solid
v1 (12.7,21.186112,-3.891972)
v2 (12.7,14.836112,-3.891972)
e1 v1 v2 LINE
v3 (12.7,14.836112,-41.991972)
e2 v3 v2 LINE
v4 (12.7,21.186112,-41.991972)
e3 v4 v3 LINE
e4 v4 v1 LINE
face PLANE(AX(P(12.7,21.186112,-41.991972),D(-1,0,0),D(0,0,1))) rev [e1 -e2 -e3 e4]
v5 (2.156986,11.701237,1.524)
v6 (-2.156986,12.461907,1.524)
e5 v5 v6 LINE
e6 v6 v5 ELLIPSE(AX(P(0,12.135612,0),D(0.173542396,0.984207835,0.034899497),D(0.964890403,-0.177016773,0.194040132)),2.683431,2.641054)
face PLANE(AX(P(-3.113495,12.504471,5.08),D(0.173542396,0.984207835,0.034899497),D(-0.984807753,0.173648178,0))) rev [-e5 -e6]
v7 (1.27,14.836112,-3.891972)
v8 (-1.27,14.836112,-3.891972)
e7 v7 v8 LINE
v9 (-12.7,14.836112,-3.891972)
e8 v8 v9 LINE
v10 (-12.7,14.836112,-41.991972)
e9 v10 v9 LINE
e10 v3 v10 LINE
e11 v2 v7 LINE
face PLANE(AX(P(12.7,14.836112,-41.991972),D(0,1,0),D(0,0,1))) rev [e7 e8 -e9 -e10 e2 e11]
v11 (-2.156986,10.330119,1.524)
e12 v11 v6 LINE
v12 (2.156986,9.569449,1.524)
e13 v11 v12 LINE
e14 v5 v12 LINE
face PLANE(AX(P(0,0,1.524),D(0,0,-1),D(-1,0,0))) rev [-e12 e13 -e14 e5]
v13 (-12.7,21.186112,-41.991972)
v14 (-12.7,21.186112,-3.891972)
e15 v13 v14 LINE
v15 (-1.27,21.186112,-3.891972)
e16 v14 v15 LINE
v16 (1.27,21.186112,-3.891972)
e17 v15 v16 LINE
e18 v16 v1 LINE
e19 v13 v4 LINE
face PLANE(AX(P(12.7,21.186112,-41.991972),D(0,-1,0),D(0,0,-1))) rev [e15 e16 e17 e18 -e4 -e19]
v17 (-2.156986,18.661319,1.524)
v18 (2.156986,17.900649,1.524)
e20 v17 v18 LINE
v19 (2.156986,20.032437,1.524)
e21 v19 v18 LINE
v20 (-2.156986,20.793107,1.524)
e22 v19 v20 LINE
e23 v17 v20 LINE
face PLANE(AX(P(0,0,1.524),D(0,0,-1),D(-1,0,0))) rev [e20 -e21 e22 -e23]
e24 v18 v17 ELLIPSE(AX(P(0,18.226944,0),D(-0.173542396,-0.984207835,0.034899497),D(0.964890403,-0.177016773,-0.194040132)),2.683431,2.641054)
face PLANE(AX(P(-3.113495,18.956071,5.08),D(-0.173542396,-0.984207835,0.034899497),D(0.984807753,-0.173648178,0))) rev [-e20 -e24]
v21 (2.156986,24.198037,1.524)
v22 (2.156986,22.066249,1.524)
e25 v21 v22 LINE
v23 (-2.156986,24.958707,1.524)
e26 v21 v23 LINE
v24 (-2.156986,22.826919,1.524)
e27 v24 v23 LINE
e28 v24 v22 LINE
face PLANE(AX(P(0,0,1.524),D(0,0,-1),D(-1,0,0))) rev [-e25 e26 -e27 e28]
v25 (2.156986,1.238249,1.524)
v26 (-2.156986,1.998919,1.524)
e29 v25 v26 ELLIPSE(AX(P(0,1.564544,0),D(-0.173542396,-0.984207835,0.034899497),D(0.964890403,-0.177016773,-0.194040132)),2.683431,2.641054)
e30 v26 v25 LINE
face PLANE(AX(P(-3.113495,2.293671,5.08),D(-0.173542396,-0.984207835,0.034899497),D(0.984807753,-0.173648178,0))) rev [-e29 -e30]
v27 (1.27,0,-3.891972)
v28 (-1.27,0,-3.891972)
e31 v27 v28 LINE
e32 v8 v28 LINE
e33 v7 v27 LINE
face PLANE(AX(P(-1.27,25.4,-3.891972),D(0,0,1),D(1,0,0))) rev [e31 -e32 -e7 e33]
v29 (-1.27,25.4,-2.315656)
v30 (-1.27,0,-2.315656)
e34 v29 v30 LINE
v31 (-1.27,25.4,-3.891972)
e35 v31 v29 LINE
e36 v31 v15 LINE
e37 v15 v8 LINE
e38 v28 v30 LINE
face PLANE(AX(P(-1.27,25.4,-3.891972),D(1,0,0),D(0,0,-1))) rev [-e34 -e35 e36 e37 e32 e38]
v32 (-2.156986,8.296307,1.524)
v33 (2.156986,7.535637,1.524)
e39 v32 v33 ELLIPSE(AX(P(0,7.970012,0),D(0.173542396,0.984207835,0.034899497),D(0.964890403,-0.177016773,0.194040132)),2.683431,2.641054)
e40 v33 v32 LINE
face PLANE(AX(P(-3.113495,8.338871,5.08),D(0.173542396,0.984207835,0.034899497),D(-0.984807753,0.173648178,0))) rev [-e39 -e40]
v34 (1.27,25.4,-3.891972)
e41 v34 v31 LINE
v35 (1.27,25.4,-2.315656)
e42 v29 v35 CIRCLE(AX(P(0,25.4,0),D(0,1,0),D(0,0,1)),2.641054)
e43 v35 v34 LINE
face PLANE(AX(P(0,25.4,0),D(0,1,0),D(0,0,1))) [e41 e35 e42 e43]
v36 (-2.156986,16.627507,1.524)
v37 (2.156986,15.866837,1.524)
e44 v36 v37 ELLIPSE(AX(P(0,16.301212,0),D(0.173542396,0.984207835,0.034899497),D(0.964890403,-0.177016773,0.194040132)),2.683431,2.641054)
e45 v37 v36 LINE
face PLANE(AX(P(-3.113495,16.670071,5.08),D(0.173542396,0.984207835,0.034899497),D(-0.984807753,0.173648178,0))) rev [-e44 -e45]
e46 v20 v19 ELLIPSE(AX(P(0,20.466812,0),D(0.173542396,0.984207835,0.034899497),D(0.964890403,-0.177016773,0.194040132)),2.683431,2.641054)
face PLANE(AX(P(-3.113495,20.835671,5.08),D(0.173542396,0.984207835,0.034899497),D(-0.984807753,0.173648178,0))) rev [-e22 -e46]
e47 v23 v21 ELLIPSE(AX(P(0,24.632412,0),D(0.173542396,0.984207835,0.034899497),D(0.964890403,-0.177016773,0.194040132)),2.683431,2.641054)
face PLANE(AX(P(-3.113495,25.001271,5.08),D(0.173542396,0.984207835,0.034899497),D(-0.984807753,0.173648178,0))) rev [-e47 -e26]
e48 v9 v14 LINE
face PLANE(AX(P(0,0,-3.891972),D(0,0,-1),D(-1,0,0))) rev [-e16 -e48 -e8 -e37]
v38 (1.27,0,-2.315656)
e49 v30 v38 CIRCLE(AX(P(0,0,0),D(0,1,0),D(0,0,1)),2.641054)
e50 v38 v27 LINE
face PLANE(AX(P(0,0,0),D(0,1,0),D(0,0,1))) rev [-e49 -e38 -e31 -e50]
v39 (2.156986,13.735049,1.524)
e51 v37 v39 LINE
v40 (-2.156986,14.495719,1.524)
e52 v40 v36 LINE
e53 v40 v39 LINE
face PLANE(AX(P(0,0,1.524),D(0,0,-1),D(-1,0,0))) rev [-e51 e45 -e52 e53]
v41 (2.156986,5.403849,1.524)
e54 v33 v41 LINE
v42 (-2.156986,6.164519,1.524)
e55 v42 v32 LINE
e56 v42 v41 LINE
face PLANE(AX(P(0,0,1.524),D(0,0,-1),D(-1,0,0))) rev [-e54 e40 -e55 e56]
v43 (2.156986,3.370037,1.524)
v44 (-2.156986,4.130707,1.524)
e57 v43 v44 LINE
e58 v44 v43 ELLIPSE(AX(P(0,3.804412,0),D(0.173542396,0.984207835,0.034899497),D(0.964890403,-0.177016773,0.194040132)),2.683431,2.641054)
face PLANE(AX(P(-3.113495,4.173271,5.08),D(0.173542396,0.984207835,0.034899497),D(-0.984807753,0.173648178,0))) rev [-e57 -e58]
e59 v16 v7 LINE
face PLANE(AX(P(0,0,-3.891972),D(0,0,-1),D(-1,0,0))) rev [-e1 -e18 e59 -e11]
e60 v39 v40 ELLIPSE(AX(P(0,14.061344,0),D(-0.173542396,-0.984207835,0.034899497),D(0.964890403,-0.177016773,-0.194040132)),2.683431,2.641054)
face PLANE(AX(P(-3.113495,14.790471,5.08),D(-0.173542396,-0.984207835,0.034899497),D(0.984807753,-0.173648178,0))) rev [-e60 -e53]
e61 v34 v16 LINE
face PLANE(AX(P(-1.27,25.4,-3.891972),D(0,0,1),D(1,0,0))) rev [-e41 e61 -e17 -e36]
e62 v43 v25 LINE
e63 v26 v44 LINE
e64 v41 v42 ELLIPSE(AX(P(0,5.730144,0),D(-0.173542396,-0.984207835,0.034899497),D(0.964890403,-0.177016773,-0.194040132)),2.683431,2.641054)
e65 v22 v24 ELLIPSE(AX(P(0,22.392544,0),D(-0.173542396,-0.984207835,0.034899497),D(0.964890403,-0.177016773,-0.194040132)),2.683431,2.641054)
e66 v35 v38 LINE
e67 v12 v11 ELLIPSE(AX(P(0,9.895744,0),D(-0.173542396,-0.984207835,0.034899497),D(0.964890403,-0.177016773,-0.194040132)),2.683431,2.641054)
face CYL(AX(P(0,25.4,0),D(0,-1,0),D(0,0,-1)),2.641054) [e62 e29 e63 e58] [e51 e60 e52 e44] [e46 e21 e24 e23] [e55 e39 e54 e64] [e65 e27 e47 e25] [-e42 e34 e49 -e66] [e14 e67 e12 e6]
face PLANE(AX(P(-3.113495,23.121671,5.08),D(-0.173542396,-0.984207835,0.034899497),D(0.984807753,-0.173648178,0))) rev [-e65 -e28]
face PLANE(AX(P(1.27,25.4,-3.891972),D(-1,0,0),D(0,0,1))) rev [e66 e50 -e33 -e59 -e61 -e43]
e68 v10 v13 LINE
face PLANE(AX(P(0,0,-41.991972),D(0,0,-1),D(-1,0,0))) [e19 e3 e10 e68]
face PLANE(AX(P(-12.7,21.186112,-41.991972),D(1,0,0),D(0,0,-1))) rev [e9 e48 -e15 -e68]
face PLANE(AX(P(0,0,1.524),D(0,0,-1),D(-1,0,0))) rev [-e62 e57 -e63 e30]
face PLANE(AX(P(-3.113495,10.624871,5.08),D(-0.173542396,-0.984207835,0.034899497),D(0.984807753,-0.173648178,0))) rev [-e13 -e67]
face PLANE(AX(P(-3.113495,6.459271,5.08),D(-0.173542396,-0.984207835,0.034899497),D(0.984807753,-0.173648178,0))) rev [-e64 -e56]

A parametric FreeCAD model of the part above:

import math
import FreeCAD as App
import Part
import Sketcher
Q = App.Units.Quantity


def faces_at(feature, points):
    """Names of the faces that lie closest to the given points."""
    faces = feature.Shape.Faces
    near = lambda p: min(range(len(faces)), key=lambda i: faces[i].distToShape(Part.Vertex(*p))[0])
    return sorted({f"Face{near(p) + 1}" for p in points})


def add_polygon(sketch, points):
    """Adds a closed chain of lines whose ends are joined by coincident constraints."""
    first, n = sketch.GeometryCount, len(points)
    for a, b in zip(points, points[1:] + points[:1]):
        sketch.addGeometry(Part.LineSegment(App.Vector(*a, 0), App.Vector(*b, 0)), False)
    for i in range(n):
        sketch.addConstraint(Sketcher.Constraint("Coincident", first + i, 2, first + (i + 1) % n, 1))

doc = App.newDocument("Part")
body = doc.addObject("PartDesign::Body", "Body")

# Sketch on XZ plane
sketch1 = doc.addObject("Sketcher::SketchObject", "Sketch")
body.addObject(sketch1)
sketch1.AttachmentSupport = (doc.XZ_Plane, [""])
sketch1.MapMode = "FlatFace"
sketch1.addGeometry([
    Part.LineSegment(App.Vector(1.27, -3.891972, 0), App.Vector(-1.27, -3.891972, 0)),
    Part.LineSegment(App.Vector(-1.27, -3.891972, 0), App.Vector(-1.27, -2.315656, 0)),
    Part.ArcOfCircle(Part.Circle(App.Vector(0, 0, 0), App.Vector(0, 0, 1), 2.641054), math.radians(-61.257847), math.radians(241.257847)),
    Part.LineSegment(App.Vector(1.27, -2.315656, 0), App.Vector(1.27, -3.891972, 0)),
], False)
sketch1.addConstraint([
    Sketcher.Constraint("Coincident", 0, 2, 1, 1),
    Sketcher.Constraint("Coincident", 1, 2, 2, 2),
    Sketcher.Constraint("Coincident", 2, 1, 3, 1),
    Sketcher.Constraint("Coincident", 3, 2, 0, 1),
    Sketcher.Constraint("Horizontal", 0),
    Sketcher.Constraint("Vertical", 1),
    Sketcher.Constraint("Vertical", 3),
    Sketcher.Constraint("Coincident", 2, 3, -1, 1),
    Sketcher.Constraint("Horizontal", 1, 2, 2, 1),
    Sketcher.Constraint("DistanceX", 0, 2, 0, 1, Q("0.1 in")),
    Sketcher.Constraint("Radius", 2, Q("2.641054 mm")),
    Sketcher.Constraint("DistanceY", 1, 1, 1, 2, Q("1.576316 mm")),
])
pad1 = doc.addObject("PartDesign::Pad", "Pad")
body.addObject(pad1)
pad1.Profile = sketch1
pad1.Length = Q("1 in")
pad1.Reversed = True

# Sketch on XY plane
sketch2 = doc.addObject("Sketcher::SketchObject", "Sketch001")
body.addObject(sketch2)
sketch2.AttachmentSupport = (doc.XY_Plane, [""])
sketch2.MapMode = "FlatFace"
sketch2.AttachmentOffset = App.Placement(App.Vector(0, 0, -3.891972), App.Rotation())
add_polygon(sketch2, [(12.7, 21.186112), (12.7, 14.836112), (-12.7, 14.836112), (-12.7, 21.186112)])  # lines 0-3
sketch2.addConstraint([
    Sketcher.Constraint("Vertical", 0),
    Sketcher.Constraint("Horizontal", 1),
    Sketcher.Constraint("Vertical", 2),
    Sketcher.Constraint("Horizontal", 3),
    Sketcher.Constraint("DistanceX", 1, 2, 1, 1, Q("1 in")),
    Sketcher.Constraint("DistanceY", 0, 2, 0, 1, Q("0.25 in")),
    Sketcher.Constraint("DistanceX", -1, 1, 0, 2, Q("0.5 in")),
    Sketcher.Constraint("DistanceY", -1, 1, 0, 2, Q("14.836112 mm")),
])
pad2 = doc.addObject("PartDesign::Pad", "Pad001")
body.addObject(pad2)
pad2.Profile = sketch2
pad2.Length = Q("1.5 in")
pad2.Reversed = True
body2 = doc.addObject("PartDesign::Body", "Body001")

# Sketch on XY plane
sketch3 = doc.addObject("Sketcher::SketchObject", "Sketch002")
body2.addObject(sketch3)
sketch3.AttachmentSupport = (doc.getObject("XY_Plane001"), [""])
sketch3.MapMode = "FlatFace"
sketch3.AttachmentOffset = App.Placement(App.Vector(0, 0, 0.2 * 25.4), App.Rotation())
add_polygon(sketch3, [(-3.113495, 25.001271), (-3.113495, 23.121671), (2.876409, 22.065489), (2.876409, 23.945089)])  # lines 0-3
sketch3.addConstraint([
    Sketcher.Constraint("Vertical", 0),
    Sketcher.Constraint("Vertical", 2),
    Sketcher.Constraint("Parallel", 1, 3),
    Sketcher.Constraint("Angle", 1, Q("-10 deg")),
    Sketcher.Constraint("DistanceY", 0, 2, 0, 1, Q("0.074 in")),
    Sketcher.Constraint("Distance", 1, Q("6.082308 mm")),
    Sketcher.Constraint("DistanceY", -1, 1, 0, 2, Q("23.121671 mm")),
    Sketcher.Constraint("DistanceX", -1, 1, 1, 2, Q("2.876409 mm")),
])
pad3 = doc.addObject("PartDesign::Pad", "Pad002")
body2.addObject(pad3)
pad3.Profile = sketch3
pad3.Length = Q("0.14 in")
pad3.Reversed = True
doc.recompute()

datumplane = doc.addObject("PartDesign::Plane", "DatumPlane")
body2.addObject(datumplane)
datumplane.AttachmentSupport = (doc.getObject("XY_Plane001"), [""])
datumplane.MapMode = "FlatFace"
datumplane.AttachmentOffset = App.Placement(App.Vector(0, 0, 0.2 * 25.4), App.Rotation())
draft = doc.addObject("PartDesign::Draft", "Draft")
body2.addObject(draft)
draft.Base = (pad3, faces_at(pad3, [
    (-3.113, 24.061, 3.302),
    (-0.119, 22.594, 3.302),
    (2.876, 23.005, 3.302),
    (-0.119, 24.473, 3.302),
]))
draft.NeutralPlane = (datumplane, [""])
draft.Angle = 2
draft.Reversed = False
doc.recompute()

boolean = doc.addObject("PartDesign::Boolean", "Boolean")
body.addObject(boolean)
boolean.Type = "Cut"
boolean.addObjects([body2])
body3 = doc.addObject("PartDesign::Body", "Body002")

# Sketch on XY plane
sketch4 = doc.addObject("Sketcher::SketchObject", "Sketch003")
body3.addObject(sketch4)
sketch4.AttachmentSupport = (doc.getObject("XY_Plane002"), [""])
sketch4.MapMode = "FlatFace"
sketch4.AttachmentOffset = App.Placement(App.Vector(0, 0, 0.2 * 25.4), App.Rotation())
add_polygon(sketch4, [(-3.113495, 16.670071), (-3.113495, 14.790471), (2.876409, 13.734289), (2.876409, 15.613889)])  # lines 0-3
sketch4.addConstraint([
    Sketcher.Constraint("Vertical", 0),
    Sketcher.Constraint("Vertical", 2),
    Sketcher.Constraint("Parallel", 1, 3),
    Sketcher.Constraint("Angle", 1, Q("-10 deg")),
    Sketcher.Constraint("DistanceY", 0, 2, 0, 1, Q("0.074 in")),
    Sketcher.Constraint("Distance", 1, Q("6.082308 mm")),
    Sketcher.Constraint("DistanceY", -1, 1, 0, 2, Q("14.790471 mm")),
    Sketcher.Constraint("DistanceX", -1, 1, 1, 2, Q("2.876409 mm")),
])
pad4 = doc.addObject("PartDesign::Pad", "Pad003")
body3.addObject(pad4)
pad4.Profile = sketch4
pad4.Length = Q("0.14 in")
pad4.Reversed = True
doc.recompute()

datumplane2 = doc.addObject("PartDesign::Plane", "DatumPlane001")
body3.addObject(datumplane2)
datumplane2.AttachmentSupport = (doc.getObject("XY_Plane002"), [""])
datumplane2.MapMode = "FlatFace"
datumplane2.AttachmentOffset = App.Placement(App.Vector(0, 0, 0.2 * 25.4), App.Rotation())
draft2 = doc.addObject("PartDesign::Draft", "Draft001")
body3.addObject(draft2)
draft2.Base = (pad4, faces_at(pad4, [
    (-3.113, 15.73, 3.302),
    (-0.119, 14.262, 3.302),
    (2.876, 14.674, 3.302),
    (-0.119, 16.142, 3.302),
]))
draft2.NeutralPlane = (datumplane2, [""])
draft2.Angle = 2
draft2.Reversed = False
doc.recompute()

boolean2 = doc.addObject("PartDesign::Boolean", "Boolean001")
body.addObject(boolean2)
boolean2.Type = "Cut"
boolean2.addObjects([body3])
body4 = doc.addObject("PartDesign::Body", "Body003")

# Sketch on XY plane
sketch5 = doc.addObject("Sketcher::SketchObject", "Sketch004")
body4.addObject(sketch5)
sketch5.AttachmentSupport = (doc.getObject("XY_Plane003"), [""])
sketch5.MapMode = "FlatFace"
sketch5.AttachmentOffset = App.Placement(App.Vector(0, 0, 0.2 * 25.4), App.Rotation())
add_polygon(sketch5, [(-3.113495, 20.835671), (-3.113495, 18.956071), (2.876409, 17.899889), (2.876409, 19.779489)])  # lines 0-3
sketch5.addConstraint([
    Sketcher.Constraint("Vertical", 0),
    Sketcher.Constraint("Vertical", 2),
    Sketcher.Constraint("Parallel", 1, 3),
    Sketcher.Constraint("Angle", 1, Q("-10 deg")),
    Sketcher.Constraint("DistanceY", 0, 2, 0, 1, Q("0.074 in")),
    Sketcher.Constraint("Distance", 1, Q("6.082308 mm")),
    Sketcher.Constraint("DistanceY", -1, 1, 0, 2, Q("18.956071 mm")),
    Sketcher.Constraint("DistanceX", -1, 1, 1, 2, Q("2.876409 mm")),
])
pad5 = doc.addObject("PartDesign::Pad", "Pad004")
body4.addObject(pad5)
pad5.Profile = sketch5
pad5.Length = Q("0.14 in")
pad5.Reversed = True
doc.recompute()

datumplane3 = doc.addObject("PartDesign::Plane", "DatumPlane002")
body4.addObject(datumplane3)
datumplane3.AttachmentSupport = (doc.getObject("XY_Plane003"), [""])
datumplane3.MapMode = "FlatFace"
datumplane3.AttachmentOffset = App.Placement(App.Vector(0, 0, 0.2 * 25.4), App.Rotation())
draft3 = doc.addObject("PartDesign::Draft", "Draft002")
body4.addObject(draft3)
draft3.Base = (pad5, faces_at(pad5, [
    (-3.113, 19.896, 3.302),
    (-0.119, 18.428, 3.302),
    (2.876, 18.84, 3.302),
    (-0.119, 20.308, 3.302),
]))
draft3.NeutralPlane = (datumplane3, [""])
draft3.Angle = 2
draft3.Reversed = False
doc.recompute()

boolean3 = doc.addObject("PartDesign::Boolean", "Boolean002")
body.addObject(boolean3)
boolean3.Type = "Cut"
boolean3.addObjects([body4])
body5 = doc.addObject("PartDesign::Body", "Body004")

# Sketch on XY plane
sketch6 = doc.addObject("Sketcher::SketchObject", "Sketch005")
body5.addObject(sketch6)
sketch6.AttachmentSupport = (doc.getObject("XY_Plane004"), [""])
sketch6.MapMode = "FlatFace"
sketch6.AttachmentOffset = App.Placement(App.Vector(0, 0, 0.2 * 25.4), App.Rotation())
add_polygon(sketch6, [(-3.113495, 12.504471), (-3.113495, 10.624871), (2.876409, 9.568689), (2.876409, 11.448289)])  # lines 0-3
sketch6.addConstraint([
    Sketcher.Constraint("Vertical", 0),
    Sketcher.Constraint("Vertical", 2),
    Sketcher.Constraint("Parallel", 1, 3),
    Sketcher.Constraint("Angle", 1, Q("-10 deg")),
    Sketcher.Constraint("DistanceY", 0, 2, 0, 1, Q("0.074 in")),
    Sketcher.Constraint("Distance", 1, Q("6.082308 mm")),
    Sketcher.Constraint("DistanceY", -1, 1, 0, 2, Q("10.624871 mm")),
    Sketcher.Constraint("DistanceX", -1, 1, 1, 2, Q("2.876409 mm")),
])
pad6 = doc.addObject("PartDesign::Pad", "Pad005")
body5.addObject(pad6)
pad6.Profile = sketch6
pad6.Length = Q("0.14 in")
pad6.Reversed = True
doc.recompute()

datumplane4 = doc.addObject("PartDesign::Plane", "DatumPlane003")
body5.addObject(datumplane4)
datumplane4.AttachmentSupport = (doc.getObject("XY_Plane004"), [""])
datumplane4.MapMode = "FlatFace"
datumplane4.AttachmentOffset = App.Placement(App.Vector(0, 0, 0.2 * 25.4), App.Rotation())
draft4 = doc.addObject("PartDesign::Draft", "Draft003")
body5.addObject(draft4)
draft4.Base = (pad6, faces_at(pad6, [
    (-3.113, 11.565, 3.302),
    (-0.119, 10.097, 3.302),
    (2.876, 10.508, 3.302),
    (-0.119, 11.976, 3.302),
]))
draft4.NeutralPlane = (datumplane4, [""])
draft4.Angle = 2
draft4.Reversed = False
doc.recompute()

boolean4 = doc.addObject("PartDesign::Boolean", "Boolean003")
body.addObject(boolean4)
boolean4.Type = "Cut"
boolean4.addObjects([body5])
body6 = doc.addObject("PartDesign::Body", "Body005")

# Sketch on XY plane
sketch7 = doc.addObject("Sketcher::SketchObject", "Sketch006")
body6.addObject(sketch7)
sketch7.AttachmentSupport = (doc.getObject("XY_Plane005"), [""])
sketch7.MapMode = "FlatFace"
sketch7.AttachmentOffset = App.Placement(App.Vector(0, 0, 0.2 * 25.4), App.Rotation())
add_polygon(sketch7, [(-3.113495, 8.338871), (-3.113495, 6.459271), (2.876409, 5.403089), (2.876409, 7.282689)])  # lines 0-3
sketch7.addConstraint([
    Sketcher.Constraint("Vertical", 0),
    Sketcher.Constraint("Vertical", 2),
    Sketcher.Constraint("Parallel", 1, 3),
    Sketcher.Constraint("Angle", 1, Q("-10 deg")),
    Sketcher.Constraint("DistanceY", 0, 2, 0, 1, Q("0.074 in")),
    Sketcher.Constraint("Distance", 1, Q("6.082308 mm")),
    Sketcher.Constraint("DistanceY", -1, 1, 0, 2, Q("6.459271 mm")),
    Sketcher.Constraint("DistanceX", -1, 1, 1, 2, Q("2.876409 mm")),
])
pad7 = doc.addObject("PartDesign::Pad", "Pad006")
body6.addObject(pad7)
pad7.Profile = sketch7
pad7.Length = Q("0.14 in")
pad7.Reversed = True
doc.recompute()

datumplane5 = doc.addObject("PartDesign::Plane", "DatumPlane004")
body6.addObject(datumplane5)
datumplane5.AttachmentSupport = (doc.getObject("XY_Plane005"), [""])
datumplane5.MapMode = "FlatFace"
datumplane5.AttachmentOffset = App.Placement(App.Vector(0, 0, 0.2 * 25.4), App.Rotation())
draft5 = doc.addObject("PartDesign::Draft", "Draft004")
body6.addObject(draft5)
draft5.Base = (pad7, faces_at(pad7, [
    (-3.113, 7.399, 3.302),
    (-0.119, 5.931, 3.302),
    (2.876, 6.343, 3.302),
    (-0.119, 7.811, 3.302),
]))
draft5.NeutralPlane = (datumplane5, [""])
draft5.Angle = 2
draft5.Reversed = False
doc.recompute()

boolean5 = doc.addObject("PartDesign::Boolean", "Boolean004")
body.addObject(boolean5)
boolean5.Type = "Cut"
boolean5.addObjects([body6])
body7 = doc.addObject("PartDesign::Body", "Body006")

# Sketch on XY plane
sketch8 = doc.addObject("Sketcher::SketchObject", "Sketch007")
body7.addObject(sketch8)
sketch8.AttachmentSupport = (doc.getObject("XY_Plane006"), [""])
sketch8.MapMode = "FlatFace"
sketch8.AttachmentOffset = App.Placement(App.Vector(0, 0, 0.2 * 25.4), App.Rotation())
add_polygon(sketch8, [(-3.113495, 4.173271), (-3.113495, 2.293671), (2.876409, 1.237489), (2.876409, 3.117089)])  # lines 0-3
sketch8.addConstraint([
    Sketcher.Constraint("Vertical", 0),
    Sketcher.Constraint("Vertical", 2),
    Sketcher.Constraint("Parallel", 1, 3),
    Sketcher.Constraint("Angle", 1, Q("-10 deg")),
    Sketcher.Constraint("DistanceY", 0, 2, 0, 1, Q("0.074 in")),
    Sketcher.Constraint("Distance", 1, Q("6.082308 mm")),
    Sketcher.Constraint("DistanceY", -1, 1, 0, 2, Q("2.293671 mm")),
    Sketcher.Constraint("DistanceX", -1, 1, 1, 2, Q("2.876409 mm")),
])
pad8 = doc.addObject("PartDesign::Pad", "Pad007")
body7.addObject(pad8)
pad8.Profile = sketch8
pad8.Length = Q("0.14 in")
pad8.Reversed = True
doc.recompute()

datumplane6 = doc.addObject("PartDesign::Plane", "DatumPlane005")
body7.addObject(datumplane6)
datumplane6.AttachmentSupport = (doc.getObject("XY_Plane006"), [""])
datumplane6.MapMode = "FlatFace"
datumplane6.AttachmentOffset = App.Placement(App.Vector(0, 0, 0.2 * 25.4), App.Rotation())
draft6 = doc.addObject("PartDesign::Draft", "Draft005")
body7.addObject(draft6)
draft6.Base = (pad8, faces_at(pad8, [
    (-3.113, 3.233, 3.302),
    (-0.119, 1.766, 3.302),
    (2.876, 2.177, 3.302),
    (-0.119, 3.645, 3.302),
]))
draft6.NeutralPlane = (datumplane6, [""])
draft6.Angle = 2
draft6.Reversed = False
doc.recompute()

boolean6 = doc.addObject("PartDesign::Boolean", "Boolean005")
body.addObject(boolean6)
boolean6.Type = "Cut"
boolean6.addObjects([body7])

doc.recompute()
